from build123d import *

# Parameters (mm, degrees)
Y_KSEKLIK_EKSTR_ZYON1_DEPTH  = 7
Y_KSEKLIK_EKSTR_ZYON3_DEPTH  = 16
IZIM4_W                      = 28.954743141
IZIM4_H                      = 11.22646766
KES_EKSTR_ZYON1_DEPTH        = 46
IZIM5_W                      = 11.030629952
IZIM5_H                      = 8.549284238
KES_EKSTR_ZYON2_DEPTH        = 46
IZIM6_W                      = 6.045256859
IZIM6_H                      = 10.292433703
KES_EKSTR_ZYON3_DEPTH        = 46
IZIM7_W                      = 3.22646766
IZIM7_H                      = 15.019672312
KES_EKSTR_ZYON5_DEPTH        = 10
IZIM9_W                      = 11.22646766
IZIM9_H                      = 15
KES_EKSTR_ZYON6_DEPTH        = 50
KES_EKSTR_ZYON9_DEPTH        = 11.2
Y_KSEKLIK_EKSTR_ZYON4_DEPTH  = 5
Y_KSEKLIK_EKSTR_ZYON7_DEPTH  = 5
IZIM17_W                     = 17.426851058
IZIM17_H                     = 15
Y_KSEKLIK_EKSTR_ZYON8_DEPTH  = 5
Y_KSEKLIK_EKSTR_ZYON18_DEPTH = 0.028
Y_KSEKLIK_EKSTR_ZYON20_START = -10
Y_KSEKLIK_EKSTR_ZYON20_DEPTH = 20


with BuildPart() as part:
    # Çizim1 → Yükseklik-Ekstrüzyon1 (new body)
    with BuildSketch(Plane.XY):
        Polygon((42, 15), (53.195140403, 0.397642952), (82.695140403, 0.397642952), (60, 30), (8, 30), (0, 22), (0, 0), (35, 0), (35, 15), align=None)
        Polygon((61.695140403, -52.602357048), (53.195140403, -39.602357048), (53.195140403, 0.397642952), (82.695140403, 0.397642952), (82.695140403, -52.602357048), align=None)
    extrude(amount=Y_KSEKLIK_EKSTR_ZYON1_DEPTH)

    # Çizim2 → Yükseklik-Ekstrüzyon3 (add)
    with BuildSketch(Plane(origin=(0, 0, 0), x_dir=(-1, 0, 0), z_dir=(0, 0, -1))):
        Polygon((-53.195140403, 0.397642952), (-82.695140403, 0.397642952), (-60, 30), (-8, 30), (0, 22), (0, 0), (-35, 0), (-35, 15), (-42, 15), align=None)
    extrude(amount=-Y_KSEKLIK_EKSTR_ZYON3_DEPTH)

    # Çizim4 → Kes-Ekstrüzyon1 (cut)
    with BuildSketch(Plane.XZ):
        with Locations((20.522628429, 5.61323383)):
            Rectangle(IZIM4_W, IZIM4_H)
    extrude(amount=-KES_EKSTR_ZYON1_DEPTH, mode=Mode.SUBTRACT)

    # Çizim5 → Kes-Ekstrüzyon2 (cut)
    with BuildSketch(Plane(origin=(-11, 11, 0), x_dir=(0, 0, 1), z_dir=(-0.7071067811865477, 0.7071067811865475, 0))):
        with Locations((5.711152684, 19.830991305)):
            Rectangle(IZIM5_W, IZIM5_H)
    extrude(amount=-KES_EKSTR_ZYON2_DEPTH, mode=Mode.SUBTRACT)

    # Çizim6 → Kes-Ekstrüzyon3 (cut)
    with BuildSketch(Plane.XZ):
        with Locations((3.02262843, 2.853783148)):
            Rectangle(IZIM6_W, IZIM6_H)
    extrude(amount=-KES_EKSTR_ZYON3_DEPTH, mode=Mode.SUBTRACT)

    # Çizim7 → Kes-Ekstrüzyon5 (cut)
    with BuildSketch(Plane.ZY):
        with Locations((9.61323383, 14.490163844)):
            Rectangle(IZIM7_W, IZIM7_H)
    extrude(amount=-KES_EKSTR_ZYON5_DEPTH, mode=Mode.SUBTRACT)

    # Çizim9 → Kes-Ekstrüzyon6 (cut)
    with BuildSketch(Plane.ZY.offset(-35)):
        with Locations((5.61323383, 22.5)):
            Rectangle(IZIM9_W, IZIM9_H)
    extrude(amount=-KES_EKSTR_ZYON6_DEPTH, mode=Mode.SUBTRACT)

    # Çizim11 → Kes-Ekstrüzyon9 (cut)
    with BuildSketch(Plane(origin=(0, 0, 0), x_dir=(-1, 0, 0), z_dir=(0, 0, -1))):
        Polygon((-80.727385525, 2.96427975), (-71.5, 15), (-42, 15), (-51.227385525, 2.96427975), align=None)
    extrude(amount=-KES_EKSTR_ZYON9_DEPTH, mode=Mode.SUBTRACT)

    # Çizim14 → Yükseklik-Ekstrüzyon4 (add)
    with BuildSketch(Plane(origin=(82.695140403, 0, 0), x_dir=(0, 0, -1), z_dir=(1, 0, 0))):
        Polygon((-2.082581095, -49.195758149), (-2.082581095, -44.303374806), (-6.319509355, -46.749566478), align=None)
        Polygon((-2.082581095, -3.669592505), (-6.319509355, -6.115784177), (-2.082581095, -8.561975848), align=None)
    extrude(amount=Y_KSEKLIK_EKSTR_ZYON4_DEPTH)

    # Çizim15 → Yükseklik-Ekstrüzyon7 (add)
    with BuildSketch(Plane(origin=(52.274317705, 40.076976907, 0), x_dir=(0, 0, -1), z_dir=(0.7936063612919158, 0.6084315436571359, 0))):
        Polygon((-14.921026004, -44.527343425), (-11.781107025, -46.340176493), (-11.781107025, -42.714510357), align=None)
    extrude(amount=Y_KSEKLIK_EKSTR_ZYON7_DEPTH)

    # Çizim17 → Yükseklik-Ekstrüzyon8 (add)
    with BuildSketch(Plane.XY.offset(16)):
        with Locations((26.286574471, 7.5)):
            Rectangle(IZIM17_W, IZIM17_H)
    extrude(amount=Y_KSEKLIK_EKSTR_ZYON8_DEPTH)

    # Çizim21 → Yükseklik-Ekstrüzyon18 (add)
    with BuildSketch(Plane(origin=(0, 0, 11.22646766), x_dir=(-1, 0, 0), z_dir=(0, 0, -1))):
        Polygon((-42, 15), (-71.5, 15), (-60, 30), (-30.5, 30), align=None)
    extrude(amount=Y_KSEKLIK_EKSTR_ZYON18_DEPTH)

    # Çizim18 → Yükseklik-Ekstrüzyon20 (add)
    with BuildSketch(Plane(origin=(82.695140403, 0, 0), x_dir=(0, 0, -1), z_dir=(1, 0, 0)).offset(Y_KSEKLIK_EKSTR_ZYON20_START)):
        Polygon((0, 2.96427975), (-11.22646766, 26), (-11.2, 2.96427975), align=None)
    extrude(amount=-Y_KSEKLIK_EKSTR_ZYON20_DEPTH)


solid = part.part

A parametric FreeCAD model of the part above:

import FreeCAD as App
import Part
import Sketcher
from FreeCAD import Vector
Q = App.Units.Quantity

doc = App.newDocument("Part")
body = doc.addObject("PartDesign::Body", "Body")

# Sketch on XY plane
sketch1 = body.newObject("Sketcher::SketchObject", "Sketch")
sketch1.AttachmentSupport = (doc.getObject("XY_Plane"), [""])
sketch1.MapMode = "FlatFace"
sketch1.addGeometry([
    Part.LineSegment(Vector(42, 15, 0), Vector(53, 0, 0)),  # 0
    Part.LineSegment(Vector(53, 0, 0), Vector(53, -40, 0)),  # 1
    Part.LineSegment(Vector(53, -40, 0), Vector(62, -53, 0)),  # 2
    Part.LineSegment(Vector(62, -53, 0), Vector(83, -53, 0)),  # 3
    Part.LineSegment(Vector(83, -53, 0), Vector(83, 0, 0)),  # 4
    Part.LineSegment(Vector(83, 0, 0), Vector(60, 30, 0)),  # 5
    Part.LineSegment(Vector(60, 30, 0), Vector(8, 30, 0)),  # 6
    Part.LineSegment(Vector(8, 30, 0), Vector(0, 22, 0)),  # 7
    Part.LineSegment(Vector(0, 22, 0), Vector(0, 0, 0)),  # 8
    Part.LineSegment(Vector(0, 0, 0), Vector(35, 0, 0)),  # 9
    Part.LineSegment(Vector(35, 0, 0), Vector(35, 15, 0)),  # 10
    Part.LineSegment(Vector(35, 15, 0), Vector(42, 15, 0)),  # 11
], False)
sketch1.addConstraint([
    Sketcher.Constraint("Coincident", 0, 2, 1, 1),
    Sketcher.Constraint("Coincident", 1, 2, 2, 1),
    Sketcher.Constraint("Coincident", 2, 2, 3, 1),
    Sketcher.Constraint("Coincident", 3, 2, 4, 1),
    Sketcher.Constraint("Coincident", 4, 2, 5, 1),
    Sketcher.Constraint("Coincident", 5, 2, 6, 1),
    Sketcher.Constraint("Coincident", 6, 2, 7, 1),
    Sketcher.Constraint("Coincident", 7, 2, 8, 1),
    Sketcher.Constraint("Coincident", 8, 2, 9, 1),
    Sketcher.Constraint("Coincident", 9, 2, 10, 1),
    Sketcher.Constraint("Coincident", 10, 2, 11, 1),
    Sketcher.Constraint("Coincident", 11, 2, 0, 1),
    Sketcher.Constraint("Vertical", 1),
    Sketcher.Constraint("Horizontal", 3),
    Sketcher.Constraint("Vertical", 4),
    Sketcher.Constraint("Horizontal", 6),
    Sketcher.Constraint("Vertical", 8),
    Sketcher.Constraint("Horizontal", 9),
    Sketcher.Constraint("Vertical", 10),
    Sketcher.Constraint("Horizontal", 11),
    Sketcher.Constraint("Coincident", 8, 2, -1, 1),
    Sketcher.Constraint("Parallel", 0, 5),
    Sketcher.Constraint("Horizontal", 0, 2, 4, 2),
    Sketcher.Constraint("DistanceX", 3, 1, 3, 2, Q("21 mm")),
    Sketcher.Constraint("DistanceX", 6, 2, 6, 1, Q("52 mm")),
    Sketcher.Constraint("DistanceX", 9, 1, 9, 2, Q("35 mm")),
    Sketcher.Constraint("DistanceX", 11, 1, 11, 2, Q("7 mm")),
    Sketcher.Constraint("DistanceY", 1, 2, 1, 1, Q("40 mm")),
    Sketcher.Constraint("DistanceY", 4, 1, 4, 2, Q("53 mm")),
    Sketcher.Constraint("DistanceY", 8, 2, 8, 1, Q("22 mm")),
    Sketcher.Constraint("DistanceY", 10, 1, 10, 2, Q("15 mm")),
    Sketcher.Constraint("Angle", 7, Q("-135 deg")),
    Sketcher.Constraint("DistanceX", -1, 1, 5, 2, Q("60 mm")),
    Sketcher.Constraint("Distance", 0, Q("18.4 mm")),
    Sketcher.Constraint("DistanceX", 1, 2, 2, 2, Q("8.5 mm")),
])
pad1 = body.newObject("PartDesign::Pad", "Pad")
pad1.Profile = sketch1
pad1.Length = 7

# Sketch on XY plane
sketch2 = body.newObject("Sketcher::SketchObject", "Sketch001")
sketch2.AttachmentSupport = (doc.getObject("XY_Plane"), [""])
sketch2.MapMode = "FlatFace"
sketch2.addGeometry([
    Part.LineSegment(Vector(83, 0, 0), Vector(53, 0, 0)),  # 0
    Part.LineSegment(Vector(53, 0, 0), Vector(42, 15, 0)),  # 1
    Part.LineSegment(Vector(42, 15, 0), Vector(35, 15, 0)),  # 2
    Part.LineSegment(Vector(35, 15, 0), Vector(35, 0, 0)),  # 3
    Part.LineSegment(Vector(35, 0, 0), Vector(0, 0, 0)),  # 4
    Part.LineSegment(Vector(0, 0, 0), Vector(0, 22, 0)),  # 5
    Part.LineSegment(Vector(0, 22, 0), Vector(8, 30, 0)),  # 6
    Part.LineSegment(Vector(8, 30, 0), Vector(60, 30, 0)),  # 7
    Part.LineSegment(Vector(60, 30, 0), Vector(83, 0, 0)),  # 8
], False)
sketch2.addConstraint([
    Sketcher.Constraint("Coincident", 0, 2, 1, 1),
    Sketcher.Constraint("Coincident", 1, 2, 2, 1),
    Sketcher.Constraint("Coincident", 2, 2, 3, 1),
    Sketcher.Constraint("Coincident", 3, 2, 4, 1),
    Sketcher.Constraint("Coincident", 4, 2, 5, 1),
    Sketcher.Constraint("Coincident", 5, 2, 6, 1),
    Sketcher.Constraint("Coincident", 6, 2, 7, 1),
    Sketcher.Constraint("Coincident", 7, 2, 8, 1),
    Sketcher.Constraint("Coincident", 8, 2, 0, 1),
    Sketcher.Constraint("Horizontal", 0),
    Sketcher.Constraint("Horizontal", 2),
    Sketcher.Constraint("Vertical", 3),
    Sketcher.Constraint("Horizontal", 4),
    Sketcher.Constraint("Vertical", 5),
    Sketcher.Constraint("Horizontal", 7),
    Sketcher.Constraint("Coincident", 4, 2, -1, 1),
    Sketcher.Constraint("Parallel", 1, 8),
    Sketcher.Constraint("DistanceX", 2, 2, 2, 1, Q("7 mm")),
    Sketcher.Constraint("DistanceX", 4, 2, 4, 1, Q("35 mm")),
    Sketcher.Constraint("DistanceX", 7, 1, 7, 2, Q("52 mm")),
    Sketcher.Constraint("DistanceY", 3, 2, 3, 1, Q("15 mm")),
    Sketcher.Constraint("DistanceY", 5, 1, 5, 2, Q("22 mm")),
    Sketcher.Constraint("Angle", 6, Q("45 deg")),
    Sketcher.Constraint("DistanceX", 0, 2, 0, 1, Q("29.5 mm")),
    Sketcher.Constraint("DistanceX", -1, 1, 6, 2, Q("8 mm")),
    Sketcher.Constraint("Distance", 1, Q("18.4 mm")),
])
pad2 = body.newObject("PartDesign::Pad", "Pad001")
pad2.Profile = sketch2
pad2.Length = 16

# Sketch on XZ plane
sketch3 = body.newObject("Sketcher::SketchObject", "Sketch002")
sketch3.AttachmentSupport = (doc.getObject("XZ_Plane"), [""])
sketch3.MapMode = "FlatFace"
sketch3.addGeometry([
    Part.LineSegment(Vector(6, 11, 0), Vector(6, 0, 0)),
    Part.LineSegment(Vector(6, 0, 0), Vector(35, 0, 0)),
    Part.LineSegment(Vector(35, 0, 0), Vector(35, 11, 0)),
    Part.LineSegment(Vector(35, 11, 0), Vector(6, 11, 0)),
], False)
sketch3.addConstraint([
    Sketcher.Constraint("Coincident", 0, 2, 1, 1),
    Sketcher.Constraint("Coincident", 1, 2, 2, 1),
    Sketcher.Constraint("Coincident", 2, 2, 3, 1),
    Sketcher.Constraint("Coincident", 3, 2, 0, 1),
    Sketcher.Constraint("Vertical", 0),
    Sketcher.Constraint("Horizontal", 1),
    Sketcher.Constraint("Vertical", 2),
    Sketcher.Constraint("Horizontal", 3),
    Sketcher.Constraint("PointOnObject", 0, 2, -1),
    Sketcher.Constraint("DistanceX", -1, 1, 1, 2, Q("35 mm")),
    Sketcher.Constraint("DistanceX", 1, 1, 1, 2, Q("28.954743 mm")),
    Sketcher.Constraint("DistanceY", 0, 2, 0, 1, Q("11.226468 mm")),
])
pocket1 = body.newObject("PartDesign::Pocket", "Pocket")
pocket1.Profile = sketch3
pocket1.Length = 46

# Sketch on an angled plane
sketch4 = body.newObject("Sketcher::SketchObject", "Sketch003")
sketch4.Placement = App.Placement(Vector(-11, 11, 0), App.Rotation(Vector(0, 0, 1), Vector(0.707106781, 0.707106781, 0), Vector(-0.707106781, 0.707106781, 0), "ZXY"))
sketch4.addGeometry([
    Part.LineSegment(Vector(0, 24, 0), Vector(0, 16, 0)),
    Part.LineSegment(Vector(0, 16, 0), Vector(11, 16, 0)),
    Part.LineSegment(Vector(11, 16, 0), Vector(11, 24, 0)),
    Part.LineSegment(Vector(11, 24, 0), Vector(0, 24, 0)),
], False)
sketch4.addConstraint([
    Sketcher.Constraint("Coincident", 0, 2, 1, 1),
    Sketcher.Constraint("Coincident", 1, 2, 2, 1),
    Sketcher.Constraint("Coincident", 2, 2, 3, 1),
    Sketcher.Constraint("Coincident", 3, 2, 0, 1),
    Sketcher.Constraint("Vertical", 0),
    Sketcher.Constraint("Horizontal", 1),
    Sketcher.Constraint("Vertical", 2),
    Sketcher.Constraint("Horizontal", 3),
    Sketcher.Constraint("DistanceX", 1, 1, 1, 2, Q("11.03063 mm")),
    Sketcher.Constraint("DistanceY", 0, 2, 0, 1, Q("8.549284 mm")),
    Sketcher.Constraint("DistanceY", -1, 1, 0, 2, Q("15.556349 mm")),
    Sketcher.Constraint("DistanceX", -1, 1, 0, 2, Q("0.195838 mm")),
])
pocket2 = body.newObject("PartDesign::Pocket", "Pocket001")
pocket2.Profile = sketch4
pocket2.Length = 46

# Sketch on XZ plane
sketch5 = body.newObject("Sketcher::SketchObject", "Sketch004")
sketch5.AttachmentSupport = (doc.getObject("XZ_Plane"), [""])
sketch5.MapMode = "FlatFace"
sketch5.addGeometry([
    Part.LineSegment(Vector(0, 8, 0), Vector(0, -2, 0)),
    Part.LineSegment(Vector(0, -2, 0), Vector(6, -2, 0)),
    Part.LineSegment(Vector(6, -2, 0), Vector(6, 8, 0)),
    Part.LineSegment(Vector(6, 8, 0), Vector(0, 8, 0)),
], False)
sketch5.addConstraint([
    Sketcher.Constraint("Coincident", 0, 2, 1, 1),
    Sketcher.Constraint("Coincident", 1, 2, 2, 1),
    Sketcher.Constraint("Coincident", 2, 2, 3, 1),
    Sketcher.Constraint("Coincident", 3, 2, 0, 1),
    Sketcher.Constraint("Vertical", 0),
    Sketcher.Constraint("Horizontal", 1),
    Sketcher.Constraint("Vertical", 2),
    Sketcher.Constraint("Horizontal", 3),
    Sketcher.Constraint("PointOnObject", 0, 2, -2),
    Sketcher.Constraint("DistanceY", -1, 1, 2, 2, Q("8 mm")),
    Sketcher.Constraint("DistanceX", 1, 1, 1, 2, Q("6.045257 mm")),
    Sketcher.Constraint("DistanceY", 0, 2, 0, 1, Q("10.292434 mm")),
])
pocket3 = body.newObject("PartDesign::Pocket", "Pocket002")
pocket3.Profile = sketch5
pocket3.Length = 46

# Sketch on YZ plane
sketch6 = body.newObject("Sketcher::SketchObject", "Sketch005")
sketch6.AttachmentSupport = (doc.getObject("YZ_Plane"), [""])
sketch6.MapMode = "FlatFace"
sketch6.addGeometry([
    Part.LineSegment(Vector(22, 8, 0), Vector(7, 8, 0)),
    Part.LineSegment(Vector(7, 8, 0), Vector(7, 11.2, 0)),
    Part.LineSegment(Vector(7, 11.2, 0), Vector(22, 11.2, 0)),
    Part.LineSegment(Vector(22, 11.2, 0), Vector(22, 8, 0)),
], False)
sketch6.addConstraint([
    Sketcher.Constraint("Coincident", 0, 2, 1, 1),
    Sketcher.Constraint("Coincident", 1, 2, 2, 1),
    Sketcher.Constraint("Coincident", 2, 2, 3, 1),
    Sketcher.Constraint("Coincident", 3, 2, 0, 1),
    Sketcher.Constraint("Horizontal", 0),
    Sketcher.Constraint("Vertical", 1),
    Sketcher.Constraint("Horizontal", 2),
    Sketcher.Constraint("Vertical", 3),
    Sketcher.Constraint("DistanceY", -1, 1, 0, 2, Q("8 mm")),
    Sketcher.Constraint("DistanceX", -1, 1, 2, 2, Q("22 mm")),
    Sketcher.Constraint("DistanceX", 0, 2, 0, 1, Q("15.019672 mm")),
    Sketcher.Constraint("DistanceY", 1, 1, 1, 2, Q("3.226468 mm")),
])
pocket4 = body.newObject("PartDesign::Pocket", "Pocket003")
pocket4.Profile = sketch6
pocket4.Length = 10
pocket4.Reversed = True

# Sketch on YZ plane
sketch7 = body.newObject("Sketcher::SketchObject", "Sketch006")
sketch7.AttachmentSupport = (doc.getObject("YZ_Plane"), [""])
sketch7.MapMode = "FlatFace"
sketch7.AttachmentOffset = App.Placement(Vector(0, 0, 35), App.Rotation())
sketch7.addGeometry([
    Part.LineSegment(Vector(30, 0, 0), Vector(15, 0, 0)),
    Part.LineSegment(Vector(15, 0, 0), Vector(15, 11, 0)),
    Part.LineSegment(Vector(15, 11, 0), Vector(30, 11, 0)),
    Part.LineSegment(Vector(30, 11, 0), Vector(30, 0, 0)),
], False)
sketch7.addConstraint([
    Sketcher.Constraint("Coincident", 0, 2, 1, 1),
    Sketcher.Constraint("Coincident", 1, 2, 2, 1),
    Sketcher.Constraint("Coincident", 2, 2, 3, 1),
    Sketcher.Constraint("Coincident", 3, 2, 0, 1),
    Sketcher.Constraint("Horizontal", 0),
    Sketcher.Constraint("Vertical", 1),
    Sketcher.Constraint("Horizontal", 2),
    Sketcher.Constraint("Vertical", 3),
    Sketcher.Constraint("PointOnObject", 0, 2, -1),
    Sketcher.Constraint("DistanceX", 0, 2, 0, 1, Q("15 mm")),
    Sketcher.Constraint("DistanceX", -1, 1, 0, 2, Q("15 mm")),
    Sketcher.Constraint("DistanceY", 1, 1, 1, 2, Q("11.226468 mm")),
])
pocket5 = body.newObject("PartDesign::Pocket", "Pocket004")
pocket5.Profile = sketch7
pocket5.Length = 50
pocket5.Reversed = True

# Sketch on XY plane
sketch8 = body.newObject("Sketcher::SketchObject", "Sketch007")
sketch8.AttachmentSupport = (doc.getObject("XY_Plane"), [""])
sketch8.MapMode = "FlatFace"
sketch8.addGeometry([
    Part.LineSegment(Vector(72, 15, 0), Vector(81, 3, 0)),
    Part.LineSegment(Vector(81, 3, 0), Vector(51, 3, 0)),
    Part.LineSegment(Vector(51, 3, 0), Vector(42, 15, 0)),
    Part.LineSegment(Vector(42, 15, 0), Vector(72, 15, 0)),
], False)
sketch8.addConstraint([
    Sketcher.Constraint("Coincident", 0, 2, 1, 1),
    Sketcher.Constraint("Coincident", 1, 2, 2, 1),
    Sketcher.Constraint("Coincident", 2, 2, 3, 1),
    Sketcher.Constraint("Coincident", 3, 2, 0, 1),
    Sketcher.Constraint("Horizontal", 1),
    Sketcher.Constraint("Horizontal", 3),
    Sketcher.Constraint("Parallel", 0, 2),
    Sketcher.Constraint("DistanceX", 1, 2, 1, 1, Q("29.5 mm")),
    Sketcher.Constraint("DistanceX", -1, 1, 2, 2, Q("42 mm")),
    Sketcher.Constraint("DistanceY", -1, 1, 2, 2, Q("15 mm")),
    Sketcher.Constraint("DistanceY", -1, 1, 0, 2, Q("2.96428 mm")),
    Sketcher.Constraint("Distance", 0, Q("15.165857 mm")),
])
pocket6 = body.newObject("PartDesign::Pocket", "Pocket005")
pocket6.Profile = sketch8
pocket6.Length = 11.2
pocket6.Reversed = True

# Sketch on YZ plane
sketch9 = body.newObject("Sketcher::SketchObject", "Sketch008")
sketch9.AttachmentSupport = (doc.getObject("YZ_Plane"), [""])
sketch9.MapMode = "FlatFace"
sketch9.AttachmentOffset = App.Placement(Vector(0, 0, 82.69514), App.Rotation())
sketch9.addGeometry([
    Part.LineSegment(Vector(-49.2, 2.1, 0), Vector(-44.3, 2.1, 0)),  # 0
    Part.LineSegment(Vector(-44.3, 2.1, 0), Vector(-46.7, 6.3, 0)),  # 1
    Part.LineSegment(Vector(-46.7, 6.3, 0), Vector(-49.2, 2.1, 0)),  # 2
    Part.LineSegment(Vector(-3.7, 2.1, 0), Vector(-6.1, 6.3, 0)),  # 3
    Part.LineSegment(Vector(-6.1, 6.3, 0), Vector(-8.6, 2.1, 0)),  # 4
    Part.LineSegment(Vector(-8.6, 2.1, 0), Vector(-3.7, 2.1, 0)),  # 5
], False)
sketch9.addConstraint([
    Sketcher.Constraint("Coincident", 0, 2, 1, 1),
    Sketcher.Constraint("Coincident", 1, 2, 2, 1),
    Sketcher.Constraint("Coincident", 2, 2, 0, 1),
    Sketcher.Constraint("Coincident", 3, 2, 4, 1),
    Sketcher.Constraint("Coincident", 4, 2, 5, 1),
    Sketcher.Constraint("Coincident", 5, 2, 3, 1),
    Sketcher.Constraint("Horizontal", 0),
    Sketcher.Constraint("Horizontal", 5),
    Sketcher.Constraint("Parallel", 1, 3),
    Sketcher.Constraint("Parallel", 2, 4),
    Sketcher.Constraint("Horizontal", 1, 2, 3, 2),
    Sketcher.Constraint("Horizontal", 2, 2, 4, 2),
    Sketcher.Constraint("Equal", 1, 2),
    Sketcher.Constraint("Angle", 1, Q("120 deg")),
    Sketcher.Constraint("DistanceX", 0, 2, 4, 2, Q("35.741399 mm")),
    Sketcher.Constraint("DistanceX", 0, 1, 0, 2, Q("4.892383 mm")),
    Sketcher.Constraint("DistanceY", -1, 1, 0, 2, Q("2.082581 mm")),
    Sketcher.Constraint("DistanceX", 2, 2, -1, 1, Q("49.195758 mm")),
])
pad3 = body.newObject("PartDesign::Pad", "Pad002")
pad3.Profile = sketch9
pad3.Length = 5

# Sketch on an angled plane
sketch10 = body.newObject("Sketcher::SketchObject", "Sketch009")
sketch10.Placement = App.Placement(Vector(52.274318, 40.076977, 0), App.Rotation(Vector(0, 0, -1), Vector(-0.608431544, 0.793606361, 0), Vector(0.793606361, 0.608431544, 0), "ZXY"))
sketch10.addGeometry([
    Part.LineSegment(Vector(-14.9, -44.5, 0), Vector(-11.8, -46.3, 0)),
    Part.LineSegment(Vector(-11.8, -46.3, 0), Vector(-11.8, -42.7, 0)),
    Part.LineSegment(Vector(-11.8, -42.7, 0), Vector(-14.9, -44.5, 0)),
], False)
sketch10.addConstraint([
    Sketcher.Constraint("Coincident", 0, 2, 1, 1),
    Sketcher.Constraint("Coincident", 1, 2, 2, 1),
    Sketcher.Constraint("Coincident", 2, 2, 0, 1),
    Sketcher.Constraint("Vertical", 1),
    Sketcher.Constraint("Equal", 0, 2),
    Sketcher.Constraint("Angle", 0, Q("-30 deg")),
    Sketcher.Constraint("DistanceY", 1, 1, 1, 2, Q("3.625666 mm")),
    Sketcher.Constraint("DistanceY", 1, 2, -1, 1, Q("42.71451 mm")),
    Sketcher.Constraint("DistanceX", 0, 2, -1, 1, Q("11.781107 mm")),
])
pad4 = body.newObject("PartDesign::Pad", "Pad003")
pad4.Profile = sketch10
pad4.Length = 5

# Sketch on XY plane
sketch11 = body.newObject("Sketcher::SketchObject", "Sketch010")
sketch11.AttachmentSupport = (doc.getObject("XY_Plane"), [""])
sketch11.MapMode = "FlatFace"
sketch11.AttachmentOffset = App.Placement(Vector(0, 0, 16), App.Rotation())
sketch11.addGeometry([
    Part.LineSegment(Vector(18, 15, 0), Vector(18, 0, 0)),
    Part.LineSegment(Vector(18, 0, 0), Vector(35, 0, 0)),
    Part.LineSegment(Vector(35, 0, 0), Vector(35, 15, 0)),
    Part.LineSegment(Vector(35, 15, 0), Vector(18, 15, 0)),
], False)
sketch11.addConstraint([
    Sketcher.Constraint("Coincident", 0, 2, 1, 1),
    Sketcher.Constraint("Coincident", 1, 2, 2, 1),
    Sketcher.Constraint("Coincident", 2, 2, 3, 1),
    Sketcher.Constraint("Coincident", 3, 2, 0, 1),
    Sketcher.Constraint("Vertical", 0),
    Sketcher.Constraint("Horizontal", 1),
    Sketcher.Constraint("Vertical", 2),
    Sketcher.Constraint("Horizontal", 3),
    Sketcher.Constraint("PointOnObject", 0, 2, -1),
    Sketcher.Constraint("DistanceY", 0, 2, 0, 1, Q("15 mm")),
    Sketcher.Constraint("DistanceX", -1, 1, 1, 2, Q("35 mm")),
    Sketcher.Constraint("DistanceX", 1, 1, 1, 2, Q("17.426851 mm")),
])
pad5 = body.newObject("PartDesign::Pad", "Pad004")
pad5.Profile = sketch11
pad5.Length = 5

# Sketch on XY plane
sketch12 = body.newObject("Sketcher::SketchObject", "Sketch011")
sketch12.AttachmentSupport = (doc.getObject("XY_Plane"), [""])
sketch12.MapMode = "FlatFace"
sketch12.AttachmentOffset = App.Placement(Vector(0, 0, 11.226468), App.Rotation())
sketch12.addGeometry([
    Part.LineSegment(Vector(72, 15, 0), Vector(42, 15, 0)),
    Part.LineSegment(Vector(42, 15, 0), Vector(30, 30, 0)),
    Part.LineSegment(Vector(30, 30, 0), Vector(60, 30, 0)),
    Part.LineSegment(Vector(60, 30, 0), Vector(72, 15, 0)),
], False)
sketch12.addConstraint([
    Sketcher.Constraint("Coincident", 0, 2, 1, 1),
    Sketcher.Constraint("Coincident", 1, 2, 2, 1),
    Sketcher.Constraint("Coincident", 2, 2, 3, 1),
    Sketcher.Constraint("Coincident", 3, 2, 0, 1),
    Sketcher.Constraint("Horizontal", 0),
    Sketcher.Constraint("Horizontal", 2),
    Sketcher.Constraint("Parallel", 1, 3),
    Sketcher.Constraint("DistanceX", 0, 2, 0, 1, Q("29.5 mm")),
    Sketcher.Constraint("DistanceX", -1, 1, 0, 2, Q("42 mm")),
    Sketcher.Constraint("DistanceY", -1, 1, 0, 2, Q("15 mm")),
    Sketcher.Constraint("DistanceY", -1, 1, 1, 2, Q("30 mm")),
    Sketcher.Constraint("DistanceX", -1, 1, 2, 2, Q("60 mm")),
])
pad6 = body.newObject("PartDesign::Pad", "Pad005")
pad6.Profile = sketch12
pad6.Length = 0.028
pad6.Reversed = True

# Sketch on YZ plane
sketch13 = body.newObject("Sketcher::SketchObject", "Sketch012")
sketch13.AttachmentSupport = (doc.getObject("YZ_Plane"), [""])
sketch13.MapMode = "FlatFace"
sketch13.AttachmentOffset = App.Placement(Vector(0, 0, 72.69514), App.Rotation())
sketch13.addGeometry([
    Part.LineSegment(Vector(3, 0, 0), Vector(26, 11, 0)),
    Part.LineSegment(Vector(26, 11, 0), Vector(3, 11, 0)),
    Part.LineSegment(Vector(3, 11, 0), Vector(3, 0, 0)),
], False)
sketch13.addConstraint([
    Sketcher.Constraint("Coincident", 0, 2, 1, 1),
    Sketcher.Constraint("Coincident", 1, 2, 2, 1),
    Sketcher.Constraint("Coincident", 2, 2, 0, 1),
    Sketcher.Constraint("Vertical", 2),
    Sketcher.Constraint("PointOnObject", 2, 2, -1),
    Sketcher.Constraint("DistanceY", 2, 2, 2, 1, Q("11.2 mm")),
    Sketcher.Constraint("DistanceX", -1, 1, 0, 2, Q("26 mm")),
    Sketcher.Constraint("Distance", 0, Q("25.625729 mm")),
    Sketcher.Constraint("DistanceX", -1, 1, 1, 2, Q("2.96428 mm")),
])
pad7 = body.newObject("PartDesign::Pad", "Pad006")
pad7.Profile = sketch13
pad7.Length = 20
pad7.Reversed = True

doc.recompute()
